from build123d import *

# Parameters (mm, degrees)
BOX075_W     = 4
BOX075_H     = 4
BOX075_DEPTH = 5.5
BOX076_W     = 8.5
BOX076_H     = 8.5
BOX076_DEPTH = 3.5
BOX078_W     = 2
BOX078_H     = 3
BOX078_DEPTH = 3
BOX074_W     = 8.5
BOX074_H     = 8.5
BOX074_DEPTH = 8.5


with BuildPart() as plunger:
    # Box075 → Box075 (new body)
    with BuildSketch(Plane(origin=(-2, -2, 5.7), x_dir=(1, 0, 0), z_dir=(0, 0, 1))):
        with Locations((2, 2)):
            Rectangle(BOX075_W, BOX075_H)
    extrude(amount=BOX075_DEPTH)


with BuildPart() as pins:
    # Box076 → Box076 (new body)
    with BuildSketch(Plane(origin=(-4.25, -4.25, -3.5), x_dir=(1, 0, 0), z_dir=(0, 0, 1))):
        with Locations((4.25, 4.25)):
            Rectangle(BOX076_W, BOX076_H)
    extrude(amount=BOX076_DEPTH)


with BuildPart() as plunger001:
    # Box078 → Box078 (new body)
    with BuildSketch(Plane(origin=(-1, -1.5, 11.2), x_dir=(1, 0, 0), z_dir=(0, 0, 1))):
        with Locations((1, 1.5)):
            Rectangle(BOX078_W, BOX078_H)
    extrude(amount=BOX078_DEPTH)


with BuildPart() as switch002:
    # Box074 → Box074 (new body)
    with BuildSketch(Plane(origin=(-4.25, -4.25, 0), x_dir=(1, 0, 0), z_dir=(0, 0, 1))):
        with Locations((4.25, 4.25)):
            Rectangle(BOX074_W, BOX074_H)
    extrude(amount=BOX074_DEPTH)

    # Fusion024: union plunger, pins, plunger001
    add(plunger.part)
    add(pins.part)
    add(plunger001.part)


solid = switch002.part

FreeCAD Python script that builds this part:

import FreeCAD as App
import Part
import Sketcher

doc = App.newDocument("Part")
body = doc.addObject("PartDesign::Body", "Body")

sketch1 = body.newObject("Sketcher::SketchObject", "Sketch")
sketch1.AttachmentSupport = (doc.getObject("XY_Plane"), [""])
sketch1.MapMode = "FlatFace"
sketch1.AttachmentOffset = App.Placement(App.Vector(0, 0, 5.7), App.Rotation())
sketch1.addGeometry([
    Part.LineSegment(App.Vector(-2, 2, 0), App.Vector(-2, -2, 0)),
    Part.LineSegment(App.Vector(-2, -2, 0), App.Vector(2, -2, 0)),
    Part.LineSegment(App.Vector(2, -2, 0), App.Vector(2, 2, 0)),
    Part.LineSegment(App.Vector(2, 2, 0), App.Vector(-2, 2, 0)),
], False)
sketch1.addConstraint([
    Sketcher.Constraint("Coincident", 0, 2, 1, 1),
    Sketcher.Constraint("Coincident", 1, 2, 2, 1),
    Sketcher.Constraint("Coincident", 2, 2, 3, 1),
    Sketcher.Constraint("Coincident", 3, 2, 0, 1),
    Sketcher.Constraint("Vertical", 0),
    Sketcher.Constraint("Horizontal", 1),
    Sketcher.Constraint("Vertical", 2),
    Sketcher.Constraint("Horizontal", 3),
    Sketcher.Constraint("Symmetric", 0, 2, 2, 2, -1, 1),
    Sketcher.Constraint("Equal", 3, 0),
    Sketcher.Constraint("DistanceX", 1, 1, 1, 2, 4.0),
])
pad1 = body.newObject("PartDesign::Pad", "Pad")
pad1.Profile = sketch1
pad1.Length = 5.5
body2 = doc.addObject("PartDesign::Body", "Body001")

sketch2 = body2.newObject("Sketcher::SketchObject", "Sketch001")
sketch2.AttachmentSupport = (doc.getObject("XY_Plane001"), [""])
sketch2.MapMode = "FlatFace"
sketch2.AttachmentOffset = App.Placement(App.Vector(0, 0, -3.5), App.Rotation())
sketch2.addGeometry([
    Part.LineSegment(App.Vector(-4, 4, 0), App.Vector(-4, -4, 0)),
    Part.LineSegment(App.Vector(-4, -4, 0), App.Vector(4, -4, 0)),
    Part.LineSegment(App.Vector(4, -4, 0), App.Vector(4, 4, 0)),
    Part.LineSegment(App.Vector(4, 4, 0), App.Vector(-4, 4, 0)),
], False)
sketch2.addConstraint([
    Sketcher.Constraint("Coincident", 0, 2, 1, 1),
    Sketcher.Constraint("Coincident", 1, 2, 2, 1),
    Sketcher.Constraint("Coincident", 2, 2, 3, 1),
    Sketcher.Constraint("Coincident", 3, 2, 0, 1),
    Sketcher.Constraint("Vertical", 0),
    Sketcher.Constraint("Horizontal", 1),
    Sketcher.Constraint("Vertical", 2),
    Sketcher.Constraint("Horizontal", 3),
    Sketcher.Constraint("Symmetric", 0, 2, 2, 2, -1, 1),
    Sketcher.Constraint("Equal", 3, 0),
    Sketcher.Constraint("DistanceX", 1, 1, 1, 2, 8.5),
])
pad2 = body2.newObject("PartDesign::Pad", "Pad001")
pad2.Profile = sketch2
pad2.Length = 3.5
body3 = doc.addObject("PartDesign::Body", "Body002")

sketch3 = body3.newObject("Sketcher::SketchObject", "Sketch002")
sketch3.AttachmentSupport = (doc.getObject("XY_Plane002"), [""])
sketch3.MapMode = "FlatFace"
sketch3.AttachmentOffset = App.Placement(App.Vector(0, 0, 11.2), App.Rotation())
sketch3.addGeometry([
    Part.LineSegment(App.Vector(-1, 1.5, 0), App.Vector(-1, -1.5, 0)),
    Part.LineSegment(App.Vector(-1, -1.5, 0), App.Vector(1, -1.5, 0)),
    Part.LineSegment(App.Vector(1, -1.5, 0), App.Vector(1, 1.5, 0)),
    Part.LineSegment(App.Vector(1, 1.5, 0), App.Vector(-1, 1.5, 0)),
], False)
sketch3.addConstraint([
    Sketcher.Constraint("Coincident", 0, 2, 1, 1),
    Sketcher.Constraint("Coincident", 1, 2, 2, 1),
    Sketcher.Constraint("Coincident", 2, 2, 3, 1),
    Sketcher.Constraint("Coincident", 3, 2, 0, 1),
    Sketcher.Constraint("Vertical", 0),
    Sketcher.Constraint("Horizontal", 1),
    Sketcher.Constraint("Vertical", 2),
    Sketcher.Constraint("Horizontal", 3),
    Sketcher.Constraint("Symmetric", 0, 2, 2, 2, -1, 1),
    Sketcher.Constraint("DistanceX", 1, 1, 1, 2, 2.0),
    Sketcher.Constraint("DistanceY", 0, 2, 0, 1, 3.0),
])
pad3 = body3.newObject("PartDesign::Pad", "Pad002")
pad3.Profile = sketch3
pad3.Length = 3
body4 = doc.addObject("PartDesign::Body", "Body003")

sketch4 = body4.newObject("Sketcher::SketchObject", "Sketch003")
sketch4.AttachmentSupport = (doc.getObject("XY_Plane003"), [""])
sketch4.MapMode = "FlatFace"
sketch4.addGeometry([
    Part.LineSegment(App.Vector(-4, 4, 0), App.Vector(-4, -4, 0)),
    Part.LineSegment(App.Vector(-4, -4, 0), App.Vector(4, -4, 0)),
    Part.LineSegment(App.Vector(4, -4, 0), App.Vector(4, 4, 0)),
    Part.LineSegment(App.Vector(4, 4, 0), App.Vector(-4, 4, 0)),
], False)
sketch4.addConstraint([
    Sketcher.Constraint("Coincident", 0, 2, 1, 1),
    Sketcher.Constraint("Coincident", 1, 2, 2, 1),
    Sketcher.Constraint("Coincident", 2, 2, 3, 1),
    Sketcher.Constraint("Coincident", 3, 2, 0, 1),
    Sketcher.Constraint("Vertical", 0),
    Sketcher.Constraint("Horizontal", 1),
    Sketcher.Constraint("Vertical", 2),
    Sketcher.Constraint("Horizontal", 3),
    Sketcher.Constraint("Symmetric", 0, 2, 2, 2, -1, 1),
    Sketcher.Constraint("Equal", 3, 0),
    Sketcher.Constraint("DistanceX", 1, 1, 1, 2, 8.5),
])
pad4 = body4.newObject("PartDesign::Pad", "Pad003")
pad4.Profile = sketch4
pad4.Length = 8.5
doc.recompute()

boolean = body4.newObject("PartDesign::Boolean", "Boolean")
boolean.Type = "Fuse"
boolean.addObjects([body])
doc.recompute()

boolean2 = body4.newObject("PartDesign::Boolean", "Boolean001")
boolean2.Type = "Fuse"
boolean2.addObjects([body2])
doc.recompute()

boolean3 = body4.newObject("PartDesign::Boolean", "Boolean002")
boolean3.Type = "Fuse"
boolean3.addObjects([body3])

doc.recompute()
